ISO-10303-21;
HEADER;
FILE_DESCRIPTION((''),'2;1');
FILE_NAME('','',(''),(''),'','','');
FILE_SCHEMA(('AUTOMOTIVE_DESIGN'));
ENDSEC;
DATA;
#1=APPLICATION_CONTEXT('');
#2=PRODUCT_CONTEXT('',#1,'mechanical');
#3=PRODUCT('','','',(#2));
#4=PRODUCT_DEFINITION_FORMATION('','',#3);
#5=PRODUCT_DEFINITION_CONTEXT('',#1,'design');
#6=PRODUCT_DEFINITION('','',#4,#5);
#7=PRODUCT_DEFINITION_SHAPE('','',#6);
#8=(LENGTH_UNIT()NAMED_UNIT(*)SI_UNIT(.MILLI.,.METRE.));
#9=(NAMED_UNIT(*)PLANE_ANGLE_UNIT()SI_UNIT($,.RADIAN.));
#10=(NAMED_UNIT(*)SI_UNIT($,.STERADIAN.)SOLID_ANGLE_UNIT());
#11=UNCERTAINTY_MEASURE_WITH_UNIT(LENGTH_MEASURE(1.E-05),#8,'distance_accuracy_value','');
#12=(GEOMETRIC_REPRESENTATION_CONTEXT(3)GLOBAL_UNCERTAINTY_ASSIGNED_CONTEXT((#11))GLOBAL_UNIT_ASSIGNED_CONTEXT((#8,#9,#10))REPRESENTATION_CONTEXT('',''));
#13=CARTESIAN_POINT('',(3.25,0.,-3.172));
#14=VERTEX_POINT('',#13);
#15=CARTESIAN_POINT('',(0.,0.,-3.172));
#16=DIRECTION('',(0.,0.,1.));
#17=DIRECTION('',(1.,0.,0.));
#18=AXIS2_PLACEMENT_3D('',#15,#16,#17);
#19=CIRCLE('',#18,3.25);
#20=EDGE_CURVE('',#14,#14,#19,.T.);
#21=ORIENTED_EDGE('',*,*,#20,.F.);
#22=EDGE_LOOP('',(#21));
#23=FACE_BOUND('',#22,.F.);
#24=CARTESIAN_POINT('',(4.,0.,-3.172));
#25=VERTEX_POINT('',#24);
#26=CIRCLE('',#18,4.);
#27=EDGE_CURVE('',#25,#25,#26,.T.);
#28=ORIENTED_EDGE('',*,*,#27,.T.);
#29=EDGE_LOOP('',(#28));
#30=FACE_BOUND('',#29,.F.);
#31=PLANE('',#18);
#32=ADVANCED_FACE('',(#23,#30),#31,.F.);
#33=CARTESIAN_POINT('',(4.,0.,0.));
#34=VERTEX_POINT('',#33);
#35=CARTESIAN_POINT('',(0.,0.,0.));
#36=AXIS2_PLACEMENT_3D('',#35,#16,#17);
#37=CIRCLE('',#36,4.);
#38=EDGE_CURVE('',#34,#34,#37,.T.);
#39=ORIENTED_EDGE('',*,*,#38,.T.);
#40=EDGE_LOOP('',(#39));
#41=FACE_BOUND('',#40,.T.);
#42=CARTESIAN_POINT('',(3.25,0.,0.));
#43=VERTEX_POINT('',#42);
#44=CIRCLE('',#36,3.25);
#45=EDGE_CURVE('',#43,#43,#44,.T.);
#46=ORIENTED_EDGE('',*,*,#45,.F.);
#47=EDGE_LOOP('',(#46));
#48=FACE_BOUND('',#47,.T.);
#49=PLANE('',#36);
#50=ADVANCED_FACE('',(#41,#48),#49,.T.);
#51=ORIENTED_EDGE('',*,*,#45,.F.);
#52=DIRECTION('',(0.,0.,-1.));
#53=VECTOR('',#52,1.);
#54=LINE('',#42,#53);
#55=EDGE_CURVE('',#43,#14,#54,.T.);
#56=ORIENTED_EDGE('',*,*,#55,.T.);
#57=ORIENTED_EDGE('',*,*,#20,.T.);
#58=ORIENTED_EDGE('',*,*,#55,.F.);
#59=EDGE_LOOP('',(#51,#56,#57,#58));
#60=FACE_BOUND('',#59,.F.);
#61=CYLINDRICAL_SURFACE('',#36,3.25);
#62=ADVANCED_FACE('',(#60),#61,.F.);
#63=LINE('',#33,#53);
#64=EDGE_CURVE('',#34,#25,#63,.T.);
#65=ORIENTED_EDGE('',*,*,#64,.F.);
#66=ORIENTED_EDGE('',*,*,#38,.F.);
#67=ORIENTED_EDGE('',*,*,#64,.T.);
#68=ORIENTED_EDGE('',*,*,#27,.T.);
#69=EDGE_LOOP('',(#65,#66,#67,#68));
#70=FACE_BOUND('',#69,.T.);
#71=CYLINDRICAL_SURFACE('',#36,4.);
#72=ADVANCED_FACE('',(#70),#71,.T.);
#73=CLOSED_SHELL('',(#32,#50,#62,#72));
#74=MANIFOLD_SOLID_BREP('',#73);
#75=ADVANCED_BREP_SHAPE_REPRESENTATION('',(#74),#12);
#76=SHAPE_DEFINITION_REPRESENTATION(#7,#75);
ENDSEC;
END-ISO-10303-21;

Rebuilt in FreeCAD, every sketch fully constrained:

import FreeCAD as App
import Part
import Sketcher

V = App.Vector

doc = App.newDocument("Part")
body = doc.addObject("PartDesign::Body", "Body")

sketch1 = body.newObject("Sketcher::SketchObject", "Sketch")
sketch1.AttachmentSupport = (doc.getObject("XY_Plane"), [""])
sketch1.MapMode = "FlatFace"
sketch1.addGeometry(Part.Circle(V(0, 0, 0), V(0, 0, 1), 4), False)
sketch1.addGeometry(Part.Circle(V(0, 0, 0), V(0, 0, 1), 3.2), False)
sketch1.addConstraint(Sketcher.Constraint("Coincident", 0, 3, -1, 1))
sketch1.addConstraint(Sketcher.Constraint("Coincident", 1, 3, -1, 1))
sketch1.addConstraint(Sketcher.Constraint("Diameter", 0, 8.0))
sketch1.addConstraint(Sketcher.Constraint("Diameter", 1, 6.5))
pad1 = body.newObject("PartDesign::Pad", "Pad")
pad1.Profile = sketch1
pad1.Length = 3.172
pad1.Reversed = True

doc.recompute()
